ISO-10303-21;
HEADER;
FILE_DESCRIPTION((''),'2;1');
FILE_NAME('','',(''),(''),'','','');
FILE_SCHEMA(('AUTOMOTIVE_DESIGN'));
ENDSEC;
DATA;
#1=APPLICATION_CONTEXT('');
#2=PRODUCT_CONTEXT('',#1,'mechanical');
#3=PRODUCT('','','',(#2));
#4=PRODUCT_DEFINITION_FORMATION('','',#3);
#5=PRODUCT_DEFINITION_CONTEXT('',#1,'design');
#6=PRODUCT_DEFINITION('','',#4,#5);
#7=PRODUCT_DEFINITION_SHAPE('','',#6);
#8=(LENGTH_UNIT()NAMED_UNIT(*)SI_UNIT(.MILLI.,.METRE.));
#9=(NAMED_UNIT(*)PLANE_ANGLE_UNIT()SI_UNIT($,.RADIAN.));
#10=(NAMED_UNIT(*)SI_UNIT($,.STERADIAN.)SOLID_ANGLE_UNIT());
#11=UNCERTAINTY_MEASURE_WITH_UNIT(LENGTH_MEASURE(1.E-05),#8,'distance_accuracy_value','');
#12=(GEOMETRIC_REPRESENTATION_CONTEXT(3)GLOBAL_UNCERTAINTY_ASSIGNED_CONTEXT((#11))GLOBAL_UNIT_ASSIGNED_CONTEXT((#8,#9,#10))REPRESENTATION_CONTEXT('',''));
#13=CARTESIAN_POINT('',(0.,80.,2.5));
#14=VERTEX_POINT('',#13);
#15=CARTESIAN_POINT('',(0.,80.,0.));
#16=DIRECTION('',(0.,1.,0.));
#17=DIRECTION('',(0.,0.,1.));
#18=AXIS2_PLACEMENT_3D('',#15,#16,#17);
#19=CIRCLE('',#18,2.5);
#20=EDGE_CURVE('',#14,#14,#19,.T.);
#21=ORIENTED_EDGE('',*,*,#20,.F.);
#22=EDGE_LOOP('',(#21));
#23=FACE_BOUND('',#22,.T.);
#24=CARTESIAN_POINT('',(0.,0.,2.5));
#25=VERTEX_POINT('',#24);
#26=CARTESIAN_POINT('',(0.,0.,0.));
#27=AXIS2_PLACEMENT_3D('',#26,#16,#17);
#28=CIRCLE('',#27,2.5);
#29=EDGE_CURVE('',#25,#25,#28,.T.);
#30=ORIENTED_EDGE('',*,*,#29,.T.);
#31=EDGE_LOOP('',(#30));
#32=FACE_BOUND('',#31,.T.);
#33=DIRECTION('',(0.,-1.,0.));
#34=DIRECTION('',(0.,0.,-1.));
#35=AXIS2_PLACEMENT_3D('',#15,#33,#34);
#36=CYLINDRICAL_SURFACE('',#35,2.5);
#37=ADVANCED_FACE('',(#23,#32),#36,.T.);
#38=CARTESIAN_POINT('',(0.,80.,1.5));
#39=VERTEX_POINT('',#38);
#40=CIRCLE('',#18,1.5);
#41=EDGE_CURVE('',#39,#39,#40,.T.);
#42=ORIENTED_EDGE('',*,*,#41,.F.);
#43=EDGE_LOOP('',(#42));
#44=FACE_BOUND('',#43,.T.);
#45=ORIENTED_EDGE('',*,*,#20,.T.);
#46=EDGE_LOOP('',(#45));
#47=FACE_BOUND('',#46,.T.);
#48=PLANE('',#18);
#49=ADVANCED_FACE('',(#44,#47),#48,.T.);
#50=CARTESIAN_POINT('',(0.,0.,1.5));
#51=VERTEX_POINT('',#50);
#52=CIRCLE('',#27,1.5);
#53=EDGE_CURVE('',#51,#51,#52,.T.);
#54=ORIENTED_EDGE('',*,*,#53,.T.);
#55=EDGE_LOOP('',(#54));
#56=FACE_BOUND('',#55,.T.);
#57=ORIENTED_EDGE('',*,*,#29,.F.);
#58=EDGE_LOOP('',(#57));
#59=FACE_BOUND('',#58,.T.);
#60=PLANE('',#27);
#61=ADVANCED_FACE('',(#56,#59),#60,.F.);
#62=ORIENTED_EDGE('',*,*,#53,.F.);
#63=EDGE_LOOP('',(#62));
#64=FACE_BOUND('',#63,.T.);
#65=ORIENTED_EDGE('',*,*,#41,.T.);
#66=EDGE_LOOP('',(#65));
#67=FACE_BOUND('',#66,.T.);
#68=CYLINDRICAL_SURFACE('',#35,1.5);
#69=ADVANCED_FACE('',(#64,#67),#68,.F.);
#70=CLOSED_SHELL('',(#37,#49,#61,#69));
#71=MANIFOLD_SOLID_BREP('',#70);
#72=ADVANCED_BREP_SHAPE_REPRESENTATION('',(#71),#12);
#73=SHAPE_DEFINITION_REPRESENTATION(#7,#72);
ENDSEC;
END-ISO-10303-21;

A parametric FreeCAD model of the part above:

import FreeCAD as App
import Part
import Sketcher
Q = App.Units.Quantity

doc = App.newDocument("Part")
body = doc.addObject("PartDesign::Body", "Body")

# Sketch on XZ plane
sketch1 = body.newObject("Sketcher::SketchObject", "Sketch")
sketch1.AttachmentSupport = (doc.getObject("XZ_Plane"), [""])
sketch1.MapMode = "FlatFace"
sketch1.addGeometry([
    Part.Circle(App.Vector(0, 0, 0), App.Vector(0, 0, 1), 2.5),
    Part.Circle(App.Vector(0, 0, 0), App.Vector(0, 0, 1), 1.5),
], False)
sketch1.addConstraint([
    Sketcher.Constraint("Coincident", 0, 3, -1, 1),
    Sketcher.Constraint("Coincident", 1, 3, -1, 1),
    Sketcher.Constraint("Diameter", 0, Q("5 mm")),
    Sketcher.Constraint("Diameter", 1, Q("3 mm")),
])
pad1 = body.newObject("PartDesign::Pad", "Pad")
pad1.Profile = sketch1
pad1.Length = 80
pad1.Reversed = True

doc.recompute()
